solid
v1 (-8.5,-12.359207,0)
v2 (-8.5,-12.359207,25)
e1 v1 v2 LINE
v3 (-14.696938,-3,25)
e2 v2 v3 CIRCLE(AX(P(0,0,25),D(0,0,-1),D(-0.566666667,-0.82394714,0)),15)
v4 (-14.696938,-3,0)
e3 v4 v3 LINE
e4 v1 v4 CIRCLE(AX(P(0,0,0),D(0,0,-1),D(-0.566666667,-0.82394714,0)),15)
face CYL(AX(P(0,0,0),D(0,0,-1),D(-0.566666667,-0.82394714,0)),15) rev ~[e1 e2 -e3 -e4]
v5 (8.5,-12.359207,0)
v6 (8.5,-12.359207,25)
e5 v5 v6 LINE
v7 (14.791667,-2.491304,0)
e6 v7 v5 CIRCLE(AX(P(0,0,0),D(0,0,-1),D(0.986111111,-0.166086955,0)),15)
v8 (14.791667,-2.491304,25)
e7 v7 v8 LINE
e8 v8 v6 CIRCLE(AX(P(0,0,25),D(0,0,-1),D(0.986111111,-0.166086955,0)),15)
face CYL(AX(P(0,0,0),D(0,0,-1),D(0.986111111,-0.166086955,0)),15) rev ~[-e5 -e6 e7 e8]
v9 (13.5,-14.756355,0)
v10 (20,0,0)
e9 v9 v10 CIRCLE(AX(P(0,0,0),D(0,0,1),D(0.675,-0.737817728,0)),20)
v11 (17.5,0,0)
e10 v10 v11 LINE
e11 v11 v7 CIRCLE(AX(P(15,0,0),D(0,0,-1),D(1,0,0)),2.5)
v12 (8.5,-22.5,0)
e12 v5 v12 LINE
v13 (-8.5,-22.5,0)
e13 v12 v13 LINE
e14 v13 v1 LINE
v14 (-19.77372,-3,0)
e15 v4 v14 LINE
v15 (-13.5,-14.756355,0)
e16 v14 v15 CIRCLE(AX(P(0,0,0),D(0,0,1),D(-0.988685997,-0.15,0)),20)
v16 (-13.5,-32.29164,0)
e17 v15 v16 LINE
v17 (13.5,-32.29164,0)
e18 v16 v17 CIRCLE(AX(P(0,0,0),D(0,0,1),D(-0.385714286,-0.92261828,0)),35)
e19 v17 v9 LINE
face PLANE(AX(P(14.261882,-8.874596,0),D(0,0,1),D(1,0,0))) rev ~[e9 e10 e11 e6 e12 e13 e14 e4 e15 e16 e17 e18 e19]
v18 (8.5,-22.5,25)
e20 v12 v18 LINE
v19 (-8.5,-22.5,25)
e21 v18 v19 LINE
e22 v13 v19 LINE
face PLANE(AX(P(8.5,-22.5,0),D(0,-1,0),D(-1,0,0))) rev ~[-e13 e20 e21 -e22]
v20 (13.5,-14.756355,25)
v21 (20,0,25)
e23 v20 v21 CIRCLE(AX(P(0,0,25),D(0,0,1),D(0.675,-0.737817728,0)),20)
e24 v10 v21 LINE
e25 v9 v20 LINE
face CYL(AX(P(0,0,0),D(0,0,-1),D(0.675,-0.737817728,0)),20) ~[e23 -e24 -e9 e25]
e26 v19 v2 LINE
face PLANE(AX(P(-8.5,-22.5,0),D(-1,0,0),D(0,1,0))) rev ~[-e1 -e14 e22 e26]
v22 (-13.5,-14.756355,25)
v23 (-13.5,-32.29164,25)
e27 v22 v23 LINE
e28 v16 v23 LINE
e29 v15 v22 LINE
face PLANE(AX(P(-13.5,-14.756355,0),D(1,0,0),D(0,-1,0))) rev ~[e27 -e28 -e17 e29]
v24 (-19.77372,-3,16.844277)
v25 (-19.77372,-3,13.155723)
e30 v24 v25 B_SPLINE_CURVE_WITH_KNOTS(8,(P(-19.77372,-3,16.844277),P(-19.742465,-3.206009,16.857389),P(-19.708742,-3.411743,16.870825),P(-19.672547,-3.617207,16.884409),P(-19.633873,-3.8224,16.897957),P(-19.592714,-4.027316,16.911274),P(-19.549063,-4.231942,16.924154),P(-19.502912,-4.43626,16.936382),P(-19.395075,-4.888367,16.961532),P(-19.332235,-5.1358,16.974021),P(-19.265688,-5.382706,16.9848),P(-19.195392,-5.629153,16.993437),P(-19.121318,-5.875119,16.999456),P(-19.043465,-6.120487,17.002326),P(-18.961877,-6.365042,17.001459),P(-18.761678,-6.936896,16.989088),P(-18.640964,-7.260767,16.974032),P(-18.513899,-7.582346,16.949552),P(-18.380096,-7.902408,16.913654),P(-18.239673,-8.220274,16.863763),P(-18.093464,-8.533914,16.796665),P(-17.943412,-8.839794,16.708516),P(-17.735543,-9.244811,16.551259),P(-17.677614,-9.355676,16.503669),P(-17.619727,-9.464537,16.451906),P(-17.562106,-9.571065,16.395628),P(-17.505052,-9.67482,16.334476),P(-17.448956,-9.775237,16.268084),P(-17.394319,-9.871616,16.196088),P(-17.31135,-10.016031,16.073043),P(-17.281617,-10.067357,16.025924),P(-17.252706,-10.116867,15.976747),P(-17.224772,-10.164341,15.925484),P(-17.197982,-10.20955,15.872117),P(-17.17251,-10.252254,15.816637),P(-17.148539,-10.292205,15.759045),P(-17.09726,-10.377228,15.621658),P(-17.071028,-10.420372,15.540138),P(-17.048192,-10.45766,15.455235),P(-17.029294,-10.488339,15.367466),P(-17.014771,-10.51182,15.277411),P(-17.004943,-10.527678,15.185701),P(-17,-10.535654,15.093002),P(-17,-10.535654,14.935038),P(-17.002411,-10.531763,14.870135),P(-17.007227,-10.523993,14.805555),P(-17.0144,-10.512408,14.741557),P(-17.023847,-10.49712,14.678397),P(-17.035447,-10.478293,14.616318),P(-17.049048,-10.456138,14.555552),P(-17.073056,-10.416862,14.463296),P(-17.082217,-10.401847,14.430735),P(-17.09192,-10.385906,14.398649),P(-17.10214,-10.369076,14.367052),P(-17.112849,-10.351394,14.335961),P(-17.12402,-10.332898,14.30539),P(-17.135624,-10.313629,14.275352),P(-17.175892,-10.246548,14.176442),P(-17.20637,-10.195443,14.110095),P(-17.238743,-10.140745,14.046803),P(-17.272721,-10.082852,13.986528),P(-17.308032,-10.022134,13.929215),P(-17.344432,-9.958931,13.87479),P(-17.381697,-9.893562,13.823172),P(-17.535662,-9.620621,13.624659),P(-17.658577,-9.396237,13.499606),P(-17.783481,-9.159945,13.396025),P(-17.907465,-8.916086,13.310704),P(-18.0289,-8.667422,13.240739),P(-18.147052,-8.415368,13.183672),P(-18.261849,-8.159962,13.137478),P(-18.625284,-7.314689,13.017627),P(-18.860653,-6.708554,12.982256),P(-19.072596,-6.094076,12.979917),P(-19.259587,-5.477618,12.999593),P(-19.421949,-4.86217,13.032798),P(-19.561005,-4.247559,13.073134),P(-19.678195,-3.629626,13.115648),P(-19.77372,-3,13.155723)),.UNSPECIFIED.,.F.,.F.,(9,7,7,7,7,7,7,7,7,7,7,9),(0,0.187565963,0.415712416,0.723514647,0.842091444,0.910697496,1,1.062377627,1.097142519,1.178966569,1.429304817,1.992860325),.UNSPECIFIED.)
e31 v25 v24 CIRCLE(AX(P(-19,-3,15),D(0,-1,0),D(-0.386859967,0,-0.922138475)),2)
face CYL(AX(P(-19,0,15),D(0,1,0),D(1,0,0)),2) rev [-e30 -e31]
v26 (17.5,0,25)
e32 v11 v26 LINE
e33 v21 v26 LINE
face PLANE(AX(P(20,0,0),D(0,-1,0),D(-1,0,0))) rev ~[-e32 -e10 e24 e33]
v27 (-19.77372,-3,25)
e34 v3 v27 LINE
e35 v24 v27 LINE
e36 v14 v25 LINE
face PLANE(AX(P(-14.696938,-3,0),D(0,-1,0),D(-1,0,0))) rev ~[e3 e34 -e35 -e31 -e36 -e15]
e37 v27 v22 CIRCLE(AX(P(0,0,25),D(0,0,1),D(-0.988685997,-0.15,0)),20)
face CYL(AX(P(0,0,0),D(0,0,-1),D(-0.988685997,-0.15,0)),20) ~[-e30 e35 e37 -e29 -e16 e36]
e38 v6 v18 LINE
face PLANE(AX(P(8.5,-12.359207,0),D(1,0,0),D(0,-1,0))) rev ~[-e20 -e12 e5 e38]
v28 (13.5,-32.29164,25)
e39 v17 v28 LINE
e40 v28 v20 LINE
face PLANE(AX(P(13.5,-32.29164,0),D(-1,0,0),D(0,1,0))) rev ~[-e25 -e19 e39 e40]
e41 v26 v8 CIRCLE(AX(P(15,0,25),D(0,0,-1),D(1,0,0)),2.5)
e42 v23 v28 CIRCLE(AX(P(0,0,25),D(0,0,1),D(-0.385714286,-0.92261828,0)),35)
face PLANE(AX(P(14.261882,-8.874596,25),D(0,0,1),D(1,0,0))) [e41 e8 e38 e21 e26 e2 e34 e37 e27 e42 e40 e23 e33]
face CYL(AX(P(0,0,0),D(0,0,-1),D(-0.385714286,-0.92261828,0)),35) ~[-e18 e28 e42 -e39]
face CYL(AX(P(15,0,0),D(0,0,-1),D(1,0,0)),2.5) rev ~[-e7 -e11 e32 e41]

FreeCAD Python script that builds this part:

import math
import FreeCAD as App
import Part
import Sketcher
from FreeCAD import Vector

doc = App.newDocument("Part")
body = doc.addObject("PartDesign::Body", "Body")

# Sketch on XY plane
sketch1 = doc.addObject("Sketcher::SketchObject", "Sketch")
body.addObject(sketch1)
sketch1.AttachmentSupport = (doc.XY_Plane, [""])
sketch1.MapMode = "FlatFace"
sketch1.addGeometry(Part.ArcOfCircle(Part.Circle(Vector(15, 0, 0), Vector(0, 0, 1), 2.5), math.radians(-95), math.radians(0)), False)
sketch1.addGeometry(Part.ArcOfCircle(Part.Circle(Vector(0, 0, 0), Vector(0, 0, 1), 15), math.radians(-55), math.radians(-10)), False)
sketch1.addGeometry(Part.LineSegment(Vector(8.5, -12.4, 0), Vector(8.5, -22.5, 0)), False)
sketch1.addGeometry(Part.LineSegment(Vector(8.5, -22.5, 0), Vector(-8.5, -22.5, 0)), False)
sketch1.addGeometry(Part.LineSegment(Vector(-8.5, -22.5, 0), Vector(-8.5, -12.4, 0)), False)
sketch1.addGeometry(Part.ArcOfCircle(Part.Circle(Vector(0, 0, 0), Vector(0, 0, 1), 15), math.radians(-168), math.radians(-125)), False)
sketch1.addGeometry(Part.LineSegment(Vector(-14.7, -3, 0), Vector(-19.8, -3, 0)), False)
sketch1.addGeometry(Part.ArcOfCircle(Part.Circle(Vector(0, 0, 0), Vector(0, 0, 1), 20), math.radians(-171), math.radians(-132)), False)
sketch1.addGeometry(Part.LineSegment(Vector(-13.5, -14.8, 0), Vector(-13.5, -32.3, 0)), False)
sketch1.addGeometry(Part.ArcOfCircle(Part.Circle(Vector(0, 0, 0), Vector(0, 0, 1), 35), math.radians(-113), math.radians(-67)), False)
sketch1.addGeometry(Part.LineSegment(Vector(13.5, -32.3, 0), Vector(13.5, -14.8, 0)), False)
sketch1.addGeometry(Part.ArcOfCircle(Part.Circle(Vector(0, 0, 0), Vector(0, 0, 1), 20), math.radians(-48), math.radians(0)), False)
sketch1.addGeometry(Part.LineSegment(Vector(20, 0, 0), Vector(17.5, 0, 0)), False)
sketch1.addConstraint(Sketcher.Constraint("Coincident", 0, 1, 1, 2))
sketch1.addConstraint(Sketcher.Constraint("Coincident", 1, 1, 2, 1))
sketch1.addConstraint(Sketcher.Constraint("Coincident", 2, 2, 3, 1))
sketch1.addConstraint(Sketcher.Constraint("Coincident", 3, 2, 4, 1))
sketch1.addConstraint(Sketcher.Constraint("Coincident", 4, 2, 5, 2))
sketch1.addConstraint(Sketcher.Constraint("Coincident", 5, 1, 6, 1))
sketch1.addConstraint(Sketcher.Constraint("Coincident", 6, 2, 7, 1))
sketch1.addConstraint(Sketcher.Constraint("Coincident", 7, 2, 8, 1))
sketch1.addConstraint(Sketcher.Constraint("Coincident", 8, 2, 9, 1))
sketch1.addConstraint(Sketcher.Constraint("Coincident", 9, 2, 10, 1))
sketch1.addConstraint(Sketcher.Constraint("Coincident", 10, 2, 11, 1))
sketch1.addConstraint(Sketcher.Constraint("Coincident", 11, 2, 12, 1))
sketch1.addConstraint(Sketcher.Constraint("Coincident", 12, 2, 0, 2))
sketch1.addConstraint(Sketcher.Constraint("Vertical", 2))
sketch1.addConstraint(Sketcher.Constraint("Horizontal", 3))
sketch1.addConstraint(Sketcher.Constraint("Vertical", 4))
sketch1.addConstraint(Sketcher.Constraint("Horizontal", 6))
sketch1.addConstraint(Sketcher.Constraint("Vertical", 8))
sketch1.addConstraint(Sketcher.Constraint("Vertical", 10))
sketch1.addConstraint(Sketcher.Constraint("Horizontal", 12))
sketch1.addConstraint(Sketcher.Constraint("Coincident", 1, 3, -1, 1))
sketch1.addConstraint(Sketcher.Constraint("Coincident", 5, 3, -1, 1))
sketch1.addConstraint(Sketcher.Constraint("Coincident", 7, 3, -1, 1))
sketch1.addConstraint(Sketcher.Constraint("Coincident", 9, 3, -1, 1))
sketch1.addConstraint(Sketcher.Constraint("Coincident", 11, 3, -1, 1))
sketch1.addConstraint(Sketcher.Constraint("Equal", 1, 5))
sketch1.addConstraint(Sketcher.Constraint("Equal", 7, 11))
sketch1.addConstraint(Sketcher.Constraint("PointOnObject", 0, 3, -1))
sketch1.addConstraint(Sketcher.Constraint("PointOnObject", 11, 2, -1))
sketch1.addConstraint(Sketcher.Constraint("Horizontal", 1, 1, 4, 2))
sketch1.addConstraint(Sketcher.Constraint("Horizontal", 8, 2, 9, 2))
sketch1.addConstraint(Sketcher.Constraint("Radius", 1, 15.0))
sketch1.addConstraint(Sketcher.Constraint("Radius", 7, 20.0))
sketch1.addConstraint(Sketcher.Constraint("Radius", 9, 35.0))
sketch1.addConstraint(Sketcher.Constraint("Radius", 0, 2.5))
sketch1.addConstraint(Sketcher.Constraint("DistanceX", 3, 2, 3, 1, 17.0))
sketch1.addConstraint(Sketcher.Constraint("DistanceX", 12, 2, 12, 1, 2.5))
sketch1.addConstraint(Sketcher.Constraint("DistanceY", 5, 1, -1, 1, 3.0))
sketch1.addConstraint(Sketcher.Constraint("DistanceX", 7, 2, 4, 2, 5.0))
sketch1.addConstraint(Sketcher.Constraint("DistanceY", 2, 2, -1, 1, 22.5))
pad1 = doc.addObject("PartDesign::Pad", "Pad")
body.addObject(pad1)
pad1.Profile = sketch1
pad1.Length = 25

# Sketch on XZ plane
sketch2 = doc.addObject("Sketcher::SketchObject", "Sketch001")
body.addObject(sketch2)
sketch2.AttachmentSupport = (doc.XZ_Plane, [""])
sketch2.MapMode = "FlatFace"
sketch2.addGeometry(Part.Circle(Vector(-19, 15, 0), Vector(0, 0, 1), 2), False)
sketch2.addConstraint(Sketcher.Constraint("Diameter", 0, 4.0))
sketch2.addConstraint(Sketcher.Constraint("DistanceX", 0, 3, -1, 1, 19.0))
sketch2.addConstraint(Sketcher.Constraint("DistanceY", -1, 1, 0, 3, 15.0))
pocket1 = doc.addObject("PartDesign::Pocket", "Pocket")
body.addObject(pocket1)
pocket1.Profile = sketch2
pocket1.Length = 25
pocket1.Reversed = True

doc.recompute()
